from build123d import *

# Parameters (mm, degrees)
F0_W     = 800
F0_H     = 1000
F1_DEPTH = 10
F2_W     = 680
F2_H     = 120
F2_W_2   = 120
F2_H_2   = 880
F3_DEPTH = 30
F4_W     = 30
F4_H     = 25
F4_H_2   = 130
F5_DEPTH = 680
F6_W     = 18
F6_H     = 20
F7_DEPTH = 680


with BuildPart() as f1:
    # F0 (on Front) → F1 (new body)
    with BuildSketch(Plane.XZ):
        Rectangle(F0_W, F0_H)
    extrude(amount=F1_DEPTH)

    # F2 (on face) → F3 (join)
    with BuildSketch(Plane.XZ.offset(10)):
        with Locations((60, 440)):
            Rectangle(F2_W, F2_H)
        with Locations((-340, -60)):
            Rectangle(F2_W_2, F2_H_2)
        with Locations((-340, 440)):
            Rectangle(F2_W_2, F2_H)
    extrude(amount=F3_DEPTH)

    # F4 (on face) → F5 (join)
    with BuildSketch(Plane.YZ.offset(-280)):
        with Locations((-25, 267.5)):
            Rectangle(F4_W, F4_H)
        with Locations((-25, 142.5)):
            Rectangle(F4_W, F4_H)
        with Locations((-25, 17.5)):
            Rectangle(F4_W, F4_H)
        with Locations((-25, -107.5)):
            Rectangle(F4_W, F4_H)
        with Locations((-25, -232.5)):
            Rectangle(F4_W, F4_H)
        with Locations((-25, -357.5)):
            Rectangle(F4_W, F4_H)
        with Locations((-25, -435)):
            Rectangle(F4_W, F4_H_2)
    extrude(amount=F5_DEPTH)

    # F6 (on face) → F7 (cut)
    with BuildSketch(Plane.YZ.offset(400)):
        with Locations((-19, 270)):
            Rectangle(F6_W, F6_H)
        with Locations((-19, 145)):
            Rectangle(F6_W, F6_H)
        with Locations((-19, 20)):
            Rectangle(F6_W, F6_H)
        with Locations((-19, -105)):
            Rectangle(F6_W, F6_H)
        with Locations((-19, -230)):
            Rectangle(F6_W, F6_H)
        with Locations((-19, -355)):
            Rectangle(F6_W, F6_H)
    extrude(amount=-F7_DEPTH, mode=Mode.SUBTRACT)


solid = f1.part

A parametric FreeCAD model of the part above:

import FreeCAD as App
import Part
import Sketcher
from FreeCAD import Vector
Q = App.Units.Quantity

doc = App.newDocument("Part")
body = doc.addObject("PartDesign::Body", "Body")

# Sketch on XZ plane
sketch1 = doc.addObject("Sketcher::SketchObject", "Sketch")
body.addObject(sketch1)
sketch1.AttachmentSupport = (doc.XZ_Plane, [""])
sketch1.MapMode = "FlatFace"
sketch1.addGeometry(Part.LineSegment(Vector(-400, 500, 0), Vector(-400, -500, 0)), False)
sketch1.addGeometry(Part.LineSegment(Vector(-400, -500, 0), Vector(400, -500, 0)), False)
sketch1.addGeometry(Part.LineSegment(Vector(400, -500, 0), Vector(400, 500, 0)), False)
sketch1.addGeometry(Part.LineSegment(Vector(400, 500, 0), Vector(-400, 500, 0)), False)
sketch1.addConstraint(Sketcher.Constraint("Coincident", 0, 2, 1, 1))
sketch1.addConstraint(Sketcher.Constraint("Coincident", 1, 2, 2, 1))
sketch1.addConstraint(Sketcher.Constraint("Coincident", 2, 2, 3, 1))
sketch1.addConstraint(Sketcher.Constraint("Coincident", 3, 2, 0, 1))
sketch1.addConstraint(Sketcher.Constraint("Vertical", 0))
sketch1.addConstraint(Sketcher.Constraint("Horizontal", 1))
sketch1.addConstraint(Sketcher.Constraint("Vertical", 2))
sketch1.addConstraint(Sketcher.Constraint("Horizontal", 3))
sketch1.addConstraint(Sketcher.Constraint("Symmetric", 0, 2, 2, 2, -1, 1))
sketch1.addConstraint(Sketcher.Constraint("DistanceX", 1, 1, 1, 2, Q("800 mm")))
sketch1.addConstraint(Sketcher.Constraint("DistanceY", 0, 2, 0, 1, Q("1000 mm")))
pad1 = doc.addObject("PartDesign::Pad", "Pad")
body.addObject(pad1)
pad1.Profile = sketch1
pad1.Length = 10

# Sketch on XZ plane
sketch2 = doc.addObject("Sketcher::SketchObject", "Sketch001")
body.addObject(sketch2)
sketch2.AttachmentSupport = (doc.XZ_Plane, [""])
sketch2.MapMode = "FlatFace"
sketch2.AttachmentOffset = App.Placement(Vector(0, 0, 10), App.Rotation())
sketch2.addGeometry(Part.LineSegment(Vector(-280, 380, 0), Vector(400, 380, 0)), False)
sketch2.addGeometry(Part.LineSegment(Vector(400, 380, 0), Vector(400, 500, 0)), False)
sketch2.addGeometry(Part.LineSegment(Vector(400, 500, 0), Vector(-400, 500, 0)), False)
sketch2.addGeometry(Part.LineSegment(Vector(-400, 500, 0), Vector(-400, -500, 0)), False)
sketch2.addGeometry(Part.LineSegment(Vector(-400, -500, 0), Vector(-280, -500, 0)), False)
sketch2.addGeometry(Part.LineSegment(Vector(-280, -500, 0), Vector(-280, 380, 0)), False)
sketch2.addConstraint(Sketcher.Constraint("Coincident", 0, 2, 1, 1))
sketch2.addConstraint(Sketcher.Constraint("Coincident", 1, 2, 2, 1))
sketch2.addConstraint(Sketcher.Constraint("Coincident", 2, 2, 3, 1))
sketch2.addConstraint(Sketcher.Constraint("Coincident", 3, 2, 4, 1))
sketch2.addConstraint(Sketcher.Constraint("Coincident", 4, 2, 5, 1))
sketch2.addConstraint(Sketcher.Constraint("Coincident", 5, 2, 0, 1))
sketch2.addConstraint(Sketcher.Constraint("Horizontal", 0))
sketch2.addConstraint(Sketcher.Constraint("Vertical", 1))
sketch2.addConstraint(Sketcher.Constraint("Horizontal", 2))
sketch2.addConstraint(Sketcher.Constraint("Vertical", 3))
sketch2.addConstraint(Sketcher.Constraint("Horizontal", 4))
sketch2.addConstraint(Sketcher.Constraint("Vertical", 5))
sketch2.addConstraint(Sketcher.Constraint("Symmetric", 1, 2, 3, 2, -1, 1))
sketch2.addConstraint(Sketcher.Constraint("Equal", 4, 1))
sketch2.addConstraint(Sketcher.Constraint("DistanceX", 0, 1, 0, 2, Q("680 mm")))
sketch2.addConstraint(Sketcher.Constraint("DistanceX", 2, 2, 2, 1, Q("800 mm")))
sketch2.addConstraint(Sketcher.Constraint("DistanceY", 3, 2, 3, 1, Q("1000 mm")))
pad2 = doc.addObject("PartDesign::Pad", "Pad001")
body.addObject(pad2)
pad2.Profile = sketch2
pad2.Length = 30

# Sketch on YZ plane
sketch3 = doc.addObject("Sketcher::SketchObject", "Sketch002")
body.addObject(sketch3)
sketch3.AttachmentSupport = (doc.YZ_Plane, [""])
sketch3.MapMode = "FlatFace"
sketch3.AttachmentOffset = App.Placement(Vector(0, 0, -280), App.Rotation())
sketch3.addGeometry(Part.LineSegment(Vector(-40, 280, 0), Vector(-40, 255, 0)), False)
sketch3.addGeometry(Part.LineSegment(Vector(-40, 255, 0), Vector(-10, 255, 0)), False)
sketch3.addGeometry(Part.LineSegment(Vector(-10, 255, 0), Vector(-10, 280, 0)), False)
sketch3.addGeometry(Part.LineSegment(Vector(-10, 280, 0), Vector(-40, 280, 0)), False)
sketch3.addGeometry(Part.LineSegment(Vector(-40, 155, 0), Vector(-40, 130, 0)), False)
sketch3.addGeometry(Part.LineSegment(Vector(-40, 130, 0), Vector(-10, 130, 0)), False)
sketch3.addGeometry(Part.LineSegment(Vector(-10, 130, 0), Vector(-10, 155, 0)), False)
sketch3.addGeometry(Part.LineSegment(Vector(-10, 155, 0), Vector(-40, 155, 0)), False)
sketch3.addGeometry(Part.LineSegment(Vector(-40, 30, 0), Vector(-40, 5, 0)), False)
sketch3.addGeometry(Part.LineSegment(Vector(-40, 5, 0), Vector(-10, 5, 0)), False)
sketch3.addGeometry(Part.LineSegment(Vector(-10, 5, 0), Vector(-10, 30, 0)), False)
sketch3.addGeometry(Part.LineSegment(Vector(-10, 30, 0), Vector(-40, 30, 0)), False)
sketch3.addGeometry(Part.LineSegment(Vector(-40, -95, 0), Vector(-40, -120, 0)), False)
sketch3.addGeometry(Part.LineSegment(Vector(-40, -120, 0), Vector(-10, -120, 0)), False)
sketch3.addGeometry(Part.LineSegment(Vector(-10, -120, 0), Vector(-10, -95, 0)), False)
sketch3.addGeometry(Part.LineSegment(Vector(-10, -95, 0), Vector(-40, -95, 0)), False)
sketch3.addGeometry(Part.LineSegment(Vector(-40, -220, 0), Vector(-40, -245, 0)), False)
sketch3.addGeometry(Part.LineSegment(Vector(-40, -245, 0), Vector(-10, -245, 0)), False)
sketch3.addGeometry(Part.LineSegment(Vector(-10, -245, 0), Vector(-10, -220, 0)), False)
sketch3.addGeometry(Part.LineSegment(Vector(-10, -220, 0), Vector(-40, -220, 0)), False)
sketch3.addGeometry(Part.LineSegment(Vector(-40, -345, 0), Vector(-40, -500, 0)), False)
sketch3.addGeometry(Part.LineSegment(Vector(-40, -500, 0), Vector(-10, -500, 0)), False)
sketch3.addGeometry(Part.LineSegment(Vector(-10, -500, 0), Vector(-10, -345, 0)), False)
sketch3.addGeometry(Part.LineSegment(Vector(-10, -345, 0), Vector(-40, -345, 0)), False)
sketch3.addConstraint(Sketcher.Constraint("Coincident", 0, 2, 1, 1))
sketch3.addConstraint(Sketcher.Constraint("Coincident", 1, 2, 2, 1))
sketch3.addConstraint(Sketcher.Constraint("Coincident", 2, 2, 3, 1))
sketch3.addConstraint(Sketcher.Constraint("Coincident", 3, 2, 0, 1))
sketch3.addConstraint(Sketcher.Constraint("Coincident", 4, 2, 5, 1))
sketch3.addConstraint(Sketcher.Constraint("Coincident", 5, 2, 6, 1))
sketch3.addConstraint(Sketcher.Constraint("Coincident", 6, 2, 7, 1))
sketch3.addConstraint(Sketcher.Constraint("Coincident", 7, 2, 4, 1))
sketch3.addConstraint(Sketcher.Constraint("Coincident", 8, 2, 9, 1))
sketch3.addConstraint(Sketcher.Constraint("Coincident", 9, 2, 10, 1))
sketch3.addConstraint(Sketcher.Constraint("Coincident", 10, 2, 11, 1))
sketch3.addConstraint(Sketcher.Constraint("Coincident", 11, 2, 8, 1))
sketch3.addConstraint(Sketcher.Constraint("Coincident", 12, 2, 13, 1))
sketch3.addConstraint(Sketcher.Constraint("Coincident", 13, 2, 14, 1))
sketch3.addConstraint(Sketcher.Constraint("Coincident", 14, 2, 15, 1))
sketch3.addConstraint(Sketcher.Constraint("Coincident", 15, 2, 12, 1))
sketch3.addConstraint(Sketcher.Constraint("Coincident", 16, 2, 17, 1))
sketch3.addConstraint(Sketcher.Constraint("Coincident", 17, 2, 18, 1))
sketch3.addConstraint(Sketcher.Constraint("Coincident", 18, 2, 19, 1))
sketch3.addConstraint(Sketcher.Constraint("Coincident", 19, 2, 16, 1))
sketch3.addConstraint(Sketcher.Constraint("Coincident", 20, 2, 21, 1))
sketch3.addConstraint(Sketcher.Constraint("Coincident", 21, 2, 22, 1))
sketch3.addConstraint(Sketcher.Constraint("Coincident", 22, 2, 23, 1))
sketch3.addConstraint(Sketcher.Constraint("Coincident", 23, 2, 20, 1))
sketch3.addConstraint(Sketcher.Constraint("Vertical", 0))
sketch3.addConstraint(Sketcher.Constraint("Horizontal", 1))
sketch3.addConstraint(Sketcher.Constraint("Vertical", 2))
sketch3.addConstraint(Sketcher.Constraint("Horizontal", 3))
sketch3.addConstraint(Sketcher.Constraint("Vertical", 4))
sketch3.addConstraint(Sketcher.Constraint("Horizontal", 5))
sketch3.addConstraint(Sketcher.Constraint("Vertical", 6))
sketch3.addConstraint(Sketcher.Constraint("Horizontal", 7))
sketch3.addConstraint(Sketcher.Constraint("Vertical", 8))
sketch3.addConstraint(Sketcher.Constraint("Horizontal", 9))
sketch3.addConstraint(Sketcher.Constraint("Vertical", 10))
sketch3.addConstraint(Sketcher.Constraint("Horizontal", 11))
sketch3.addConstraint(Sketcher.Constraint("Vertical", 12))
sketch3.addConstraint(Sketcher.Constraint("Horizontal", 13))
sketch3.addConstraint(Sketcher.Constraint("Vertical", 14))
sketch3.addConstraint(Sketcher.Constraint("Horizontal", 15))
sketch3.addConstraint(Sketcher.Constraint("Vertical", 16))
sketch3.addConstraint(Sketcher.Constraint("Horizontal", 17))
sketch3.addConstraint(Sketcher.Constraint("Vertical", 18))
sketch3.addConstraint(Sketcher.Constraint("Horizontal", 19))
sketch3.addConstraint(Sketcher.Constraint("Vertical", 20))
sketch3.addConstraint(Sketcher.Constraint("Horizontal", 21))
sketch3.addConstraint(Sketcher.Constraint("Vertical", 22))
sketch3.addConstraint(Sketcher.Constraint("Horizontal", 23))
sketch3.addConstraint(Sketcher.Constraint("Vertical", 3, 2, 4, 2))
sketch3.addConstraint(Sketcher.Constraint("Vertical", 2, 2, 5, 2))
sketch3.addConstraint(Sketcher.Constraint("Vertical", 7, 2, 8, 2))
sketch3.addConstraint(Sketcher.Constraint("Vertical", 6, 2, 9, 2))
sketch3.addConstraint(Sketcher.Constraint("Vertical", 11, 2, 12, 2))
sketch3.addConstraint(Sketcher.Constraint("Vertical", 10, 2, 13, 2))
sketch3.addConstraint(Sketcher.Constraint("Vertical", 15, 2, 16, 2))
sketch3.addConstraint(Sketcher.Constraint("Vertical", 14, 2, 17, 2))
sketch3.addConstraint(Sketcher.Constraint("Vertical", 19, 2, 20, 2))
sketch3.addConstraint(Sketcher.Constraint("Vertical", 18, 2, 21, 2))
sketch3.addConstraint(Sketcher.Constraint("Equal", 2, 4))
sketch3.addConstraint(Sketcher.Constraint("Equal", 6, 8))
sketch3.addConstraint(Sketcher.Constraint("Equal", 10, 12))
sketch3.addConstraint(Sketcher.Constraint("Equal", 14, 16))
sketch3.addConstraint(Sketcher.Constraint("DistanceX", 1, 1, 1, 2, Q("30 mm")))
sketch3.addConstraint(Sketcher.Constraint("DistanceY", 0, 2, 0, 1, Q("25 mm")))
sketch3.addConstraint(Sketcher.Constraint("DistanceY", 20, 2, 20, 1, Q("155 mm")))
sketch3.addConstraint(Sketcher.Constraint("DistanceX", 0, 2, -1, 1, Q("40 mm")))
sketch3.addConstraint(Sketcher.Constraint("DistanceY", -1, 1, 0, 2, Q("255 mm")))
sketch3.addConstraint(Sketcher.Constraint("DistanceY", -1, 1, 4, 2, Q("130 mm")))
sketch3.addConstraint(Sketcher.Constraint("DistanceY", -1, 1, 8, 2, Q("5 mm")))
sketch3.addConstraint(Sketcher.Constraint("DistanceY", 12, 2, -1, 1, Q("120 mm")))
sketch3.addConstraint(Sketcher.Constraint("DistanceY", 16, 2, -1, 1, Q("245 mm")))
sketch3.addConstraint(Sketcher.Constraint("DistanceY", 20, 2, -1, 1, Q("500 mm")))
pad3 = doc.addObject("PartDesign::Pad", "Pad002")
body.addObject(pad3)
pad3.Profile = sketch3
pad3.Length = 680

# Sketch on YZ plane
sketch4 = doc.addObject("Sketcher::SketchObject", "Sketch003")
body.addObject(sketch4)
sketch4.AttachmentSupport = (doc.YZ_Plane, [""])
sketch4.MapMode = "FlatFace"
sketch4.AttachmentOffset = App.Placement(Vector(0, 0, 400), App.Rotation())
sketch4.addGeometry(Part.LineSegment(Vector(-28, 280, 0), Vector(-28, 260, 0)), False)
sketch4.addGeometry(Part.LineSegment(Vector(-28, 260, 0), Vector(-10, 260, 0)), False)
sketch4.addGeometry(Part.LineSegment(Vector(-10, 260, 0), Vector(-10, 280, 0)), False)
sketch4.addGeometry(Part.LineSegment(Vector(-10, 280, 0), Vector(-28, 280, 0)), False)
sketch4.addGeometry(Part.LineSegment(Vector(-28, 155, 0), Vector(-28, 135, 0)), False)
sketch4.addGeometry(Part.LineSegment(Vector(-28, 135, 0), Vector(-10, 135, 0)), False)
sketch4.addGeometry(Part.LineSegment(Vector(-10, 135, 0), Vector(-10, 155, 0)), False)
sketch4.addGeometry(Part.LineSegment(Vector(-10, 155, 0), Vector(-28, 155, 0)), False)
sketch4.addGeometry(Part.LineSegment(Vector(-28, 30, 0), Vector(-28, 10, 0)), False)
sketch4.addGeometry(Part.LineSegment(Vector(-28, 10, 0), Vector(-10, 10, 0)), False)
sketch4.addGeometry(Part.LineSegment(Vector(-10, 10, 0), Vector(-10, 30, 0)), False)
sketch4.addGeometry(Part.LineSegment(Vector(-10, 30, 0), Vector(-28, 30, 0)), False)
sketch4.addGeometry(Part.LineSegment(Vector(-28, -95, 0), Vector(-28, -115, 0)), False)
sketch4.addGeometry(Part.LineSegment(Vector(-28, -115, 0), Vector(-10, -115, 0)), False)
sketch4.addGeometry(Part.LineSegment(Vector(-10, -115, 0), Vector(-10, -95, 0)), False)
sketch4.addGeometry(Part.LineSegment(Vector(-10, -95, 0), Vector(-28, -95, 0)), False)
sketch4.addGeometry(Part.LineSegment(Vector(-28, -220, 0), Vector(-28, -240, 0)), False)
sketch4.addGeometry(Part.LineSegment(Vector(-28, -240, 0), Vector(-10, -240, 0)), False)
sketch4.addGeometry(Part.LineSegment(Vector(-10, -240, 0), Vector(-10, -220, 0)), False)
sketch4.addGeometry(Part.LineSegment(Vector(-10, -220, 0), Vector(-28, -220, 0)), False)
sketch4.addGeometry(Part.LineSegment(Vector(-28, -345, 0), Vector(-28, -365, 0)), False)
sketch4.addGeometry(Part.LineSegment(Vector(-28, -365, 0), Vector(-10, -365, 0)), False)
sketch4.addGeometry(Part.LineSegment(Vector(-10, -365, 0), Vector(-10, -345, 0)), False)
sketch4.addGeometry(Part.LineSegment(Vector(-10, -345, 0), Vector(-28, -345, 0)), False)
sketch4.addConstraint(Sketcher.Constraint("Coincident", 0, 2, 1, 1))
sketch4.addConstraint(Sketcher.Constraint("Coincident", 1, 2, 2, 1))
sketch4.addConstraint(Sketcher.Constraint("Coincident", 2, 2, 3, 1))
sketch4.addConstraint(Sketcher.Constraint("Coincident", 3, 2, 0, 1))
sketch4.addConstraint(Sketcher.Constraint("Coincident", 4, 2, 5, 1))
sketch4.addConstraint(Sketcher.Constraint("Coincident", 5, 2, 6, 1))
sketch4.addConstraint(Sketcher.Constraint("Coincident", 6, 2, 7, 1))
sketch4.addConstraint(Sketcher.Constraint("Coincident", 7, 2, 4, 1))
sketch4.addConstraint(Sketcher.Constraint("Coincident", 8, 2, 9, 1))
sketch4.addConstraint(Sketcher.Constraint("Coincident", 9, 2, 10, 1))
sketch4.addConstraint(Sketcher.Constraint("Coincident", 10, 2, 11, 1))
sketch4.addConstraint(Sketcher.Constraint("Coincident", 11, 2, 8, 1))
sketch4.addConstraint(Sketcher.Constraint("Coincident", 12, 2, 13, 1))
sketch4.addConstraint(Sketcher.Constraint("Coincident", 13, 2, 14, 1))
sketch4.addConstraint(Sketcher.Constraint("Coincident", 14, 2, 15, 1))
sketch4.addConstraint(Sketcher.Constraint("Coincident", 15, 2, 12, 1))
sketch4.addConstraint(Sketcher.Constraint("Coincident", 16, 2, 17, 1))
sketch4.addConstraint(Sketcher.Constraint("Coincident", 17, 2, 18, 1))
sketch4.addConstraint(Sketcher.Constraint("Coincident", 18, 2, 19, 1))
sketch4.addConstraint(Sketcher.Constraint("Coincident", 19, 2, 16, 1))
sketch4.addConstraint(Sketcher.Constraint("Coincident", 20, 2, 21, 1))
sketch4.addConstraint(Sketcher.Constraint("Coincident", 21, 2, 22, 1))
sketch4.addConstraint(Sketcher.Constraint("Coincident", 22, 2, 23, 1))
sketch4.addConstraint(Sketcher.Constraint("Coincident", 23, 2, 20, 1))
sketch4.addConstraint(Sketcher.Constraint("Vertical", 0))
sketch4.addConstraint(Sketcher.Constraint("Horizontal", 1))
sketch4.addConstraint(Sketcher.Constraint("Vertical", 2))
sketch4.addConstraint(Sketcher.Constraint("Horizontal", 3))
sketch4.addConstraint(Sketcher.Constraint("Vertical", 4))
sketch4.addConstraint(Sketcher.Constraint("Horizontal", 5))
sketch4.addConstraint(Sketcher.Constraint("Vertical", 6))
sketch4.addConstraint(Sketcher.Constraint("Horizontal", 7))
sketch4.addConstraint(Sketcher.Constraint("Vertical", 8))
sketch4.addConstraint(Sketcher.Constraint("Horizontal", 9))
sketch4.addConstraint(Sketcher.Constraint("Vertical", 10))
sketch4.addConstraint(Sketcher.Constraint("Horizontal", 11))
sketch4.addConstraint(Sketcher.Constraint("Vertical", 12))
sketch4.addConstraint(Sketcher.Constraint("Horizontal", 13))
sketch4.addConstraint(Sketcher.Constraint("Vertical", 14))
sketch4.addConstraint(Sketcher.Constraint("Horizontal", 15))
sketch4.addConstraint(Sketcher.Constraint("Vertical", 16))
sketch4.addConstraint(Sketcher.Constraint("Horizontal", 17))
sketch4.addConstraint(Sketcher.Constraint("Vertical", 18))
sketch4.addConstraint(Sketcher.Constraint("Horizontal", 19))
sketch4.addConstraint(Sketcher.Constraint("Vertical", 20))
sketch4.addConstraint(Sketcher.Constraint("Horizontal", 21))
sketch4.addConstraint(Sketcher.Constraint("Vertical", 22))
sketch4.addConstraint(Sketcher.Constraint("Horizontal", 23))
sketch4.addConstraint(Sketcher.Constraint("Vertical", 3, 2, 4, 2))
sketch4.addConstraint(Sketcher.Constraint("Vertical", 2, 2, 5, 2))
sketch4.addConstraint(Sketcher.Constraint("Vertical", 7, 2, 8, 2))
sketch4.addConstraint(Sketcher.Constraint("Vertical", 6, 2, 9, 2))
sketch4.addConstraint(Sketcher.Constraint("Vertical", 11, 2, 12, 2))
sketch4.addConstraint(Sketcher.Constraint("Vertical", 10, 2, 13, 2))
sketch4.addConstraint(Sketcher.Constraint("Vertical", 15, 2, 16, 2))
sketch4.addConstraint(Sketcher.Constraint("Vertical", 14, 2, 17, 2))
sketch4.addConstraint(Sketcher.Constraint("Vertical", 19, 2, 20, 2))
sketch4.addConstraint(Sketcher.Constraint("Vertical", 18, 2, 21, 2))
sketch4.addConstraint(Sketcher.Constraint("Equal", 2, 4))
sketch4.addConstraint(Sketcher.Constraint("Equal", 6, 8))
sketch4.addConstraint(Sketcher.Constraint("Equal", 10, 12))
sketch4.addConstraint(Sketcher.Constraint("Equal", 14, 16))
sketch4.addConstraint(Sketcher.Constraint("Equal", 18, 20))
sketch4.addConstraint(Sketcher.Constraint("DistanceX", 1, 1, 1, 2, Q("18 mm")))
sketch4.addConstraint(Sketcher.Constraint("DistanceY", 0, 2, 0, 1, Q("20 mm")))
sketch4.addConstraint(Sketcher.Constraint("DistanceX", 0, 2, -1, 1, Q("28 mm")))
sketch4.addConstraint(Sketcher.Constraint("DistanceY", -1, 1, 0, 2, Q("260 mm")))
sketch4.addConstraint(Sketcher.Constraint("DistanceY", -1, 1, 4, 2, Q("135 mm")))
sketch4.addConstraint(Sketcher.Constraint("DistanceY", -1, 1, 8, 2, Q("10 mm")))
sketch4.addConstraint(Sketcher.Constraint("DistanceY", 12, 2, -1, 1, Q("115 mm")))
sketch4.addConstraint(Sketcher.Constraint("DistanceY", 16, 2, -1, 1, Q("240 mm")))
sketch4.addConstraint(Sketcher.Constraint("DistanceY", 20, 2, -1, 1, Q("365 mm")))
pocket1 = doc.addObject("PartDesign::Pocket", "Pocket")
body.addObject(pocket1)
pocket1.Profile = sketch4
pocket1.Length = 680

doc.recompute()
